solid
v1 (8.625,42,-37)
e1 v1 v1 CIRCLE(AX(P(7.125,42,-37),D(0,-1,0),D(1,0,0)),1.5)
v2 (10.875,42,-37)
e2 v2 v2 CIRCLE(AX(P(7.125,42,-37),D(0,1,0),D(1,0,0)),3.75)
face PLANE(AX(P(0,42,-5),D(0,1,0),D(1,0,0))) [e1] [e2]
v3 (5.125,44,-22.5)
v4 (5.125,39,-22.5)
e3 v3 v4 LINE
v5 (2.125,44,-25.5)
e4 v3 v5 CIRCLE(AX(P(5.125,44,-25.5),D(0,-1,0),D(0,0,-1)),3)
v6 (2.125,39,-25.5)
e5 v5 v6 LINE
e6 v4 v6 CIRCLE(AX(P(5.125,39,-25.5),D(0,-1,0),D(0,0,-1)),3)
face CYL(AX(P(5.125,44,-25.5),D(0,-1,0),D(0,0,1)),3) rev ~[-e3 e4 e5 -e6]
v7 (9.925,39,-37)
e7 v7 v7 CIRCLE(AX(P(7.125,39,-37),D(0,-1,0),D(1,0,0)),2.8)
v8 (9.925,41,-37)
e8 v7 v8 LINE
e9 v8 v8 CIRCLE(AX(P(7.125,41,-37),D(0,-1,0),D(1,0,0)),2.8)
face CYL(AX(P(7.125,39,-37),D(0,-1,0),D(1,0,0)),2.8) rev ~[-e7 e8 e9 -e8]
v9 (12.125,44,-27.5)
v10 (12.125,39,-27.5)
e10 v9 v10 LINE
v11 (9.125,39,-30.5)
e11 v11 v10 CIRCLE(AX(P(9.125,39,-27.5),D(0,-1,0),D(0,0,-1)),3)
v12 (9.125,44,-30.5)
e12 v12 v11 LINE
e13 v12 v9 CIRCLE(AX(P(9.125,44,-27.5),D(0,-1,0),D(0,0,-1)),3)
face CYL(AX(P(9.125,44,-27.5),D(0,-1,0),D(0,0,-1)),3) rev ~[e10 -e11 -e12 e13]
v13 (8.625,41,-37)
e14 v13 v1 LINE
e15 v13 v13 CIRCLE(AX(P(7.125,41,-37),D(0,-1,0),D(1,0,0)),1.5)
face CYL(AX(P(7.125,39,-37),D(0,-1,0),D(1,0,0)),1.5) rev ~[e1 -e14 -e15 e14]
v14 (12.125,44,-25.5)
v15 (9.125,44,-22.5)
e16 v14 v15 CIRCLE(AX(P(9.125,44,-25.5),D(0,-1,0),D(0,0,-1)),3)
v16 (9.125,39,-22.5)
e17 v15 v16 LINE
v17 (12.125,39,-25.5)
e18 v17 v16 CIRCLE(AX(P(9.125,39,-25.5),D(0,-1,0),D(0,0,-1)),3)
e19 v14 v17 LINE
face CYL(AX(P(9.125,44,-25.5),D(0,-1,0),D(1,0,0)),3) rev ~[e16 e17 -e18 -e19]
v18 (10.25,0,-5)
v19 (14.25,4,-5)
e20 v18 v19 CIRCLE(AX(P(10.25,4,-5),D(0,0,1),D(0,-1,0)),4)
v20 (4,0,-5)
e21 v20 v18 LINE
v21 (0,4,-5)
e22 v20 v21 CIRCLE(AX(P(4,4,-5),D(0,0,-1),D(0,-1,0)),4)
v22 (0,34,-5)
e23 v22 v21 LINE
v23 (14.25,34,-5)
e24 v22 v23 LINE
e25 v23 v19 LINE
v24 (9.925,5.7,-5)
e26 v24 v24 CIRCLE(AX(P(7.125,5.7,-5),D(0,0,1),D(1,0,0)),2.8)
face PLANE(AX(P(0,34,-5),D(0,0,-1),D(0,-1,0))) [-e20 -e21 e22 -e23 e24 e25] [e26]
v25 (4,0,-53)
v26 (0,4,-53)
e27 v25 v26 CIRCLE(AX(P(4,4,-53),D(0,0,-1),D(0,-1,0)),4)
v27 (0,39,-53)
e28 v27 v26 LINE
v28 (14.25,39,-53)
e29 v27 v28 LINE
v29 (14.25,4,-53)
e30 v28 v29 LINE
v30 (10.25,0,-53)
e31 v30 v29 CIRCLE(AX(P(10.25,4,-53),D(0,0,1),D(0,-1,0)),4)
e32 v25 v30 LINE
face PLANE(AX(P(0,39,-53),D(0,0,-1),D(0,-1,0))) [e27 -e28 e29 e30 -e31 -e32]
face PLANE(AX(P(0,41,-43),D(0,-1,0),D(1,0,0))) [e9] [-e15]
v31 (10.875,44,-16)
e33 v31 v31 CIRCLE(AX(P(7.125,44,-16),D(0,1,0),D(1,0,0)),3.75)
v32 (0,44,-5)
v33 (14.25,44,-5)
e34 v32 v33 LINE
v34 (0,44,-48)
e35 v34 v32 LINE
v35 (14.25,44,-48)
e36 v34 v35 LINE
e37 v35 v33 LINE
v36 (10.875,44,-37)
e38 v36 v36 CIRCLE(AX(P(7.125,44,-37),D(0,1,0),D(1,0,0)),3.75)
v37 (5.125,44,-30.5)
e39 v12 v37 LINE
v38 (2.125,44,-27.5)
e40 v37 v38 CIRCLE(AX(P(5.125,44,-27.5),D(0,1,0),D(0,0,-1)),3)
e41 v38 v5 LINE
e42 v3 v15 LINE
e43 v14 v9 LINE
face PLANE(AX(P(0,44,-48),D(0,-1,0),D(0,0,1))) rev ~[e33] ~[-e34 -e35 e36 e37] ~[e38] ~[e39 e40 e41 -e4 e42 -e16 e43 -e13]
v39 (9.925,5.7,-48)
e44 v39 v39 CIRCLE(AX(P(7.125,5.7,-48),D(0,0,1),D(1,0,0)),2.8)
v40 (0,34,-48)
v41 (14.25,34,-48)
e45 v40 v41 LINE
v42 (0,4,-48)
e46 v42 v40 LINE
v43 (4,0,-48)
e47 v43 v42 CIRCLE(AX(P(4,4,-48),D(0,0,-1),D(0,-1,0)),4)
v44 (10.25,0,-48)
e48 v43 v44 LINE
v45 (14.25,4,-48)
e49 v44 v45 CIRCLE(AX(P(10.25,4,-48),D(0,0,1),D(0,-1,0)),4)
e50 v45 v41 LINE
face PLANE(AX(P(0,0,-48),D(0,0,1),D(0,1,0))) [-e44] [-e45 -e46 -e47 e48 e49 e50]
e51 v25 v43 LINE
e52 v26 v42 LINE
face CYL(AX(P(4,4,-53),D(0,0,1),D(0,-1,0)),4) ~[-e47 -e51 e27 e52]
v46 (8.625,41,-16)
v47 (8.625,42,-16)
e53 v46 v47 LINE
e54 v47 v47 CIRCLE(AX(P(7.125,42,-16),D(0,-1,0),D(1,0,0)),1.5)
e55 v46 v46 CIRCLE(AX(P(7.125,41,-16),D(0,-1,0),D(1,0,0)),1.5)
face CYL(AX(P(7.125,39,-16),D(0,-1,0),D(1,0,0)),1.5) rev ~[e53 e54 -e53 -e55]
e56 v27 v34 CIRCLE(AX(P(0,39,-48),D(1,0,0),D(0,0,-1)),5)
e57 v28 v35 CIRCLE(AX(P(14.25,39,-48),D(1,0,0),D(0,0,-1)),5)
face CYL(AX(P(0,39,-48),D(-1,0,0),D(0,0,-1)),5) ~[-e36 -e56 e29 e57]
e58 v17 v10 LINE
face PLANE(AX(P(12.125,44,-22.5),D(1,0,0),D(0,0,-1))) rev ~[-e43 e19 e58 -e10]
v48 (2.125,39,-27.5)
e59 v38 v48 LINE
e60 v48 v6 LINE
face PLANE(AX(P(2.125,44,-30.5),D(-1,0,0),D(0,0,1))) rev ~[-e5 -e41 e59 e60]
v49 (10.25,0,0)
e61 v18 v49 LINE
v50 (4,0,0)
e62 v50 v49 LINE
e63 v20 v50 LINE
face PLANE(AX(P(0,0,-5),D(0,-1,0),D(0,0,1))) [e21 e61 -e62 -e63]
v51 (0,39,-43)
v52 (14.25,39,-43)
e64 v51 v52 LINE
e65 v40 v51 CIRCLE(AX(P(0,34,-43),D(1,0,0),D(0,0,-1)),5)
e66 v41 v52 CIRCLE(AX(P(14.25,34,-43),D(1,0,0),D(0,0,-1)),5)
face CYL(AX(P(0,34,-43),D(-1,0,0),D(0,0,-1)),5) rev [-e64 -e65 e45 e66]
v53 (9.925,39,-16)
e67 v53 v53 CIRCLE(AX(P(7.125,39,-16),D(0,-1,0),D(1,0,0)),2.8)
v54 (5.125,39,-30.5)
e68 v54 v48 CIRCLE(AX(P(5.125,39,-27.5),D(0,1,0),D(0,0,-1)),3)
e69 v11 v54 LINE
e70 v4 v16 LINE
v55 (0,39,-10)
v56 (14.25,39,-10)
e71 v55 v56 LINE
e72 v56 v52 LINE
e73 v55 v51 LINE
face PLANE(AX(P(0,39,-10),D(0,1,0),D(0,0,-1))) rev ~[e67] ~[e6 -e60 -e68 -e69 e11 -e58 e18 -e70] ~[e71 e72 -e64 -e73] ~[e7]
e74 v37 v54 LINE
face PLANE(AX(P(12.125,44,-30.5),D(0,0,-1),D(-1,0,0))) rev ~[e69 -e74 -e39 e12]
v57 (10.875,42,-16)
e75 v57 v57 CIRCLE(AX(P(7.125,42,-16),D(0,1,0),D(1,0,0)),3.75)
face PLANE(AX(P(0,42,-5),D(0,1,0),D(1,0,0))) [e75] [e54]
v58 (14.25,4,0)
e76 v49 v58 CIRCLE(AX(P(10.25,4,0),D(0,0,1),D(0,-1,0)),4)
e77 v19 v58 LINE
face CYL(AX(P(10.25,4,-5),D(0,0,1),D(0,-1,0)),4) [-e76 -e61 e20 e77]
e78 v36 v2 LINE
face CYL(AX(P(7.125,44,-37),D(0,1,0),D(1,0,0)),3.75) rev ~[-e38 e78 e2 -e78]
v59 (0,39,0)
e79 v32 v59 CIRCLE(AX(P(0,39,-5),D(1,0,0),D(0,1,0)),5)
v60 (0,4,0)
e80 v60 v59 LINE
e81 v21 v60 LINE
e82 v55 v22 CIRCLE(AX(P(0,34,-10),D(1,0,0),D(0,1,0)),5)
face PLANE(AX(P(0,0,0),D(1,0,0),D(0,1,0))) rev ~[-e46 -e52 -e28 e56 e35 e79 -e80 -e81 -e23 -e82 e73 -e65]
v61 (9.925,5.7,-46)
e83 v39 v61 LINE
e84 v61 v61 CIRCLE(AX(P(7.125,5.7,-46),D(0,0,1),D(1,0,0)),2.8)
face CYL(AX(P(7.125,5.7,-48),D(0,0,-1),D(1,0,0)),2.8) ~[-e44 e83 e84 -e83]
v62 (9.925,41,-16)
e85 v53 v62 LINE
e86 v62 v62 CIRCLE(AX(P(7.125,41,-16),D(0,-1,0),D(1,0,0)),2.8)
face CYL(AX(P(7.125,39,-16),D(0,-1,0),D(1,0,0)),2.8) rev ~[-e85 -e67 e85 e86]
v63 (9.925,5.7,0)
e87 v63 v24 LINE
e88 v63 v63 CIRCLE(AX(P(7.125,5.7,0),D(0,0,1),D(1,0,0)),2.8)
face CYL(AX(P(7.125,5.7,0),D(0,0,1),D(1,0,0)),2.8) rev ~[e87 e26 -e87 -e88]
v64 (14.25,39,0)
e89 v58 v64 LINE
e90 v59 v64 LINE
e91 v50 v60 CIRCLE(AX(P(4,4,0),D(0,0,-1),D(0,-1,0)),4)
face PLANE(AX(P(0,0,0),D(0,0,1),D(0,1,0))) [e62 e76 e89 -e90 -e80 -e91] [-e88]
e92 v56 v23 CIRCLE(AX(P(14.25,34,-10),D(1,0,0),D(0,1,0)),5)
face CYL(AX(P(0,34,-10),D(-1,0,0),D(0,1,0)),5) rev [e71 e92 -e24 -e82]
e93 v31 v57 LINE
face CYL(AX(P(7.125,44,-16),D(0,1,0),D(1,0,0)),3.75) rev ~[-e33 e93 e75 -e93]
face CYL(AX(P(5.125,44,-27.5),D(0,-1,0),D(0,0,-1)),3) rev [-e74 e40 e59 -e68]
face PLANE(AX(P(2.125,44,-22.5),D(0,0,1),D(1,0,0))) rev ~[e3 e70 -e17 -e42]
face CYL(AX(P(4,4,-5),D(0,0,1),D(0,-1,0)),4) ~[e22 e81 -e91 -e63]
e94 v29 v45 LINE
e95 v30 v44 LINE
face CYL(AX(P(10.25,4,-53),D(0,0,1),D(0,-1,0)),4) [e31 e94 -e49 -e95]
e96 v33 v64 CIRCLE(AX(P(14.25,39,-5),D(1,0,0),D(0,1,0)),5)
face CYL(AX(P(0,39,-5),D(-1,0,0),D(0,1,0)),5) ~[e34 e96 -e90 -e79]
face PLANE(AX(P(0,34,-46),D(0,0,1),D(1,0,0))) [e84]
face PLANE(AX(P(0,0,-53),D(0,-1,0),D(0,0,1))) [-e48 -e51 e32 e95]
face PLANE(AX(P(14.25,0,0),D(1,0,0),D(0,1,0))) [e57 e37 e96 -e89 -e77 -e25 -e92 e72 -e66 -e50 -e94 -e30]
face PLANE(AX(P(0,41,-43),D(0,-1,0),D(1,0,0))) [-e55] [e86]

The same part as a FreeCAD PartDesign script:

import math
import FreeCAD as App
import Part
import Sketcher

V = App.Vector
Q = App.Units.Quantity


def edges_at(feature, points):
    """Names of the edges that pass closest to the given points."""
    edges = feature.Shape.Edges
    near = lambda p: min(range(len(edges)), key=lambda i: edges[i].distToShape(Part.Vertex(*p))[0])
    return sorted({f"Edge{near(p) + 1}" for p in points})


def add_polygon(sketch, points):
    """Adds a closed chain of lines whose ends are joined by coincident constraints."""
    first, n = sketch.GeometryCount, len(points)
    for a, b in zip(points, points[1:] + points[:1]):
        sketch.addGeometry(Part.LineSegment(App.Vector(*a, 0), App.Vector(*b, 0)), False)
    for i in range(n):
        sketch.addConstraint(Sketcher.Constraint("Coincident", first + i, 2, first + (i + 1) % n, 1))

doc = App.newDocument("Part")
body = doc.addObject("PartDesign::Body", "Body")

sketch1 = body.newObject("Sketcher::SketchObject", "Sketch")
sketch1.AttachmentSupport = (doc.getObject("YZ_Plane"), [""])
sketch1.MapMode = "FlatFace"
sketch1.addGeometry(Part.LineSegment(V(39, 0, 0), V(0, 0, 0)), False)
sketch1.addGeometry(Part.LineSegment(V(0, 0, 0), V(0, -5, 0)), False)
sketch1.addGeometry(Part.LineSegment(V(0, -5, 0), V(34, -5, 0)), False)
sketch1.addGeometry(Part.ArcOfCircle(Part.Circle(V(34, -10, 0), V(0, 0, 1), 5), math.radians(0), math.radians(90)), False)
sketch1.addGeometry(Part.LineSegment(V(39, -10, 0), V(39, -43, 0)), False)
sketch1.addGeometry(Part.ArcOfCircle(Part.Circle(V(34, -43, 0), V(0, 0, 1), 5), math.radians(-90), math.radians(0)), False)
sketch1.addGeometry(Part.LineSegment(V(34, -48, 0), V(0, -48, 0)), False)
sketch1.addGeometry(Part.LineSegment(V(0, -48, 0), V(0, -53, 0)), False)
sketch1.addGeometry(Part.LineSegment(V(0, -53, 0), V(39, -53, 0)), False)
sketch1.addGeometry(Part.ArcOfCircle(Part.Circle(V(39, -48, 0), V(0, 0, 1), 5), math.radians(-90), math.radians(0)), False)
sketch1.addGeometry(Part.LineSegment(V(44, -48, 0), V(44, -5, 0)), False)
sketch1.addGeometry(Part.ArcOfCircle(Part.Circle(V(39, -5, 0), V(0, 0, 1), 5), math.radians(0), math.radians(90)), False)
sketch1.addConstraint(Sketcher.Constraint("Coincident", 0, 2, 1, 1))
sketch1.addConstraint(Sketcher.Constraint("Coincident", 1, 2, 2, 1))
sketch1.addConstraint(Sketcher.Constraint("Tangent", 2, 2, 3, 2))
sketch1.addConstraint(Sketcher.Constraint("Tangent", 3, 1, 4, 1))
sketch1.addConstraint(Sketcher.Constraint("Tangent", 4, 2, 5, 2))
sketch1.addConstraint(Sketcher.Constraint("Tangent", 5, 1, 6, 1))
sketch1.addConstraint(Sketcher.Constraint("Coincident", 6, 2, 7, 1))
sketch1.addConstraint(Sketcher.Constraint("Coincident", 7, 2, 8, 1))
sketch1.addConstraint(Sketcher.Constraint("Tangent", 8, 2, 9, 1))
sketch1.addConstraint(Sketcher.Constraint("Tangent", 9, 2, 10, 1))
sketch1.addConstraint(Sketcher.Constraint("Tangent", 10, 2, 11, 1))
sketch1.addConstraint(Sketcher.Constraint("Tangent", 11, 2, 0, 1))
sketch1.addConstraint(Sketcher.Constraint("Horizontal", 0))
sketch1.addConstraint(Sketcher.Constraint("Vertical", 1))
sketch1.addConstraint(Sketcher.Constraint("Horizontal", 2))
sketch1.addConstraint(Sketcher.Constraint("Vertical", 4))
sketch1.addConstraint(Sketcher.Constraint("Horizontal", 6))
sketch1.addConstraint(Sketcher.Constraint("Vertical", 7))
sketch1.addConstraint(Sketcher.Constraint("Horizontal", 8))
sketch1.addConstraint(Sketcher.Constraint("Vertical", 10))
sketch1.addConstraint(Sketcher.Constraint("Coincident", 0, 2, -1, 1))
sketch1.addConstraint(Sketcher.Constraint("Equal", 3, 5))
sketch1.addConstraint(Sketcher.Constraint("Equal", 5, 9))
sketch1.addConstraint(Sketcher.Constraint("Equal", 9, 11))
sketch1.addConstraint(Sketcher.Constraint("PointOnObject", 6, 2, -2))
sketch1.addConstraint(Sketcher.Constraint("Horizontal", 11, 3, 1, 2))
sketch1.addConstraint(Sketcher.Constraint("Horizontal", 9, 3, 5, 1))
sketch1.addConstraint(Sketcher.Constraint("Vertical", 11, 3, 3, 1))
sketch1.addConstraint(Sketcher.Constraint("Radius", 3, Q("5 mm")))
sketch1.addConstraint(Sketcher.Constraint("DistanceX", 0, 2, 0, 1, Q("39 mm")))
sketch1.addConstraint(Sketcher.Constraint("DistanceY", 10, 1, 10, 2, Q("43 mm")))
pad1 = body.newObject("PartDesign::Pad", "Pad")
pad1.Profile = sketch1
pad1.Length = 14.25
doc.recompute()

fillet = body.newObject("PartDesign::Fillet", "Fillet")
fillet.Base = (pad1, edges_at(pad1, [
    (14.25, 0, -2.5),
    (0, 0, -2.5),
    (14.25, 0, -50.5),
    (0, 0, -50.5),
]))
fillet.Radius = 4

sketch2 = body.newObject("Sketcher::SketchObject", "Sketch001")
sketch2.AttachmentSupport = (doc.getObject("XY_Plane"), [""])
sketch2.MapMode = "FlatFace"
sketch2.addGeometry(Part.Circle(V(7.125, 5.7, 0), V(0, 0, 1), 2.8), False)
sketch2.addConstraint(Sketcher.Constraint("Diameter", 0, Q("5.6 mm")))
sketch2.addConstraint(Sketcher.Constraint("DistanceY", -1, 1, 0, 3, Q("5.7 mm")))
sketch2.addConstraint(Sketcher.Constraint("DistanceX", -1, 1, 0, 3, Q("7.125 mm")))
pocket1 = body.newObject("PartDesign::Pocket", "Pocket")
pocket1.Profile = sketch2
pocket1.Length = 11.4

sketch3 = body.newObject("Sketcher::SketchObject", "Sketch002")
sketch3.AttachmentSupport = (doc.getObject("XZ_Plane"), [""])
sketch3.MapMode = "FlatFace"
sketch3.AttachmentOffset = App.Placement(V(0, 0, -39), App.Rotation())
sketch3.addGeometry(Part.Circle(V(7.125, -16, 0), V(0, 0, 1), 1.5), False)
sketch3.addGeometry(Part.Circle(V(7.125, -37, 0), V(0, 0, 1), 1.5), False)
sketch3.addConstraint(Sketcher.Constraint("Equal", 0, 1))
sketch3.addConstraint(Sketcher.Constraint("Vertical", 0, 3, 1, 3))
sketch3.addConstraint(Sketcher.Constraint("Diameter", 0, Q("3 mm")))
sketch3.addConstraint(Sketcher.Constraint("DistanceX", -1, 1, 0, 3, Q("7.125 mm")))
sketch3.addConstraint(Sketcher.Constraint("DistanceY", 0, 3, -1, 1, Q("16 mm")))
sketch3.addConstraint(Sketcher.Constraint("DistanceY", 1, 3, -1, 1, Q("37 mm")))
pocket2 = body.newObject("PartDesign::Pocket", "Pocket001")
pocket2.Profile = sketch3
pocket2.Length = 8

sketch4 = body.newObject("Sketcher::SketchObject", "Sketch003")
sketch4.AttachmentSupport = (doc.getObject("XZ_Plane"), [""])
sketch4.MapMode = "FlatFace"
sketch4.AttachmentOffset = App.Placement(V(0, 0, -39), App.Rotation())
sketch4.addGeometry(Part.Circle(V(7.125, -16, 0), V(0, 0, 1), 2.8), False)
sketch4.addGeometry(Part.Circle(V(7.125, -16, 0), V(0, 0, 1), 1.5), False)
sketch4.addGeometry(Part.Circle(V(7.125, -37, 0), V(0, 0, 1), 2.8), False)
sketch4.addGeometry(Part.Circle(V(7.125, -37, 0), V(0, 0, 1), 1.5), False)
sketch4.addConstraint(Sketcher.Constraint("Coincident", 1, 3, 0, 3))
sketch4.addConstraint(Sketcher.Constraint("Coincident", 3, 3, 2, 3))
sketch4.addConstraint(Sketcher.Constraint("Equal", 0, 2))
sketch4.addConstraint(Sketcher.Constraint("Equal", 1, 3))
sketch4.addConstraint(Sketcher.Constraint("Vertical", 1, 3, 2, 3))
sketch4.addConstraint(Sketcher.Constraint("Diameter", 1, Q("3 mm")))
sketch4.addConstraint(Sketcher.Constraint("Diameter", 0, Q("5.6 mm")))
sketch4.addConstraint(Sketcher.Constraint("DistanceX", -1, 1, 0, 3, Q("7.125 mm")))
sketch4.addConstraint(Sketcher.Constraint("DistanceY", 0, 3, -1, 1, Q("16 mm")))
sketch4.addConstraint(Sketcher.Constraint("DistanceY", 2, 3, -1, 1, Q("37 mm")))
pocket3 = body.newObject("PartDesign::Pocket", "Pocket002")
pocket3.Profile = sketch4
pocket3.Length = 2

sketch5 = body.newObject("Sketcher::SketchObject", "Sketch004")
sketch5.AttachmentSupport = (doc.getObject("XY_Plane"), [""])
sketch5.MapMode = "FlatFace"
sketch5.AttachmentOffset = App.Placement(V(0, 0, -48), App.Rotation())
sketch5.addGeometry(Part.Circle(V(7.125, 5.7, 0), V(0, 0, 1), 2.8), False)
sketch5.addConstraint(Sketcher.Constraint("Diameter", 0, Q("5.6 mm")))
sketch5.addConstraint(Sketcher.Constraint("DistanceY", -1, 1, 0, 3, Q("5.7 mm")))
sketch5.addConstraint(Sketcher.Constraint("DistanceX", -1, 1, 0, 3, Q("7.125 mm")))
pad2 = body.newObject("PartDesign::Pad", "Pad001")
pad2.Profile = sketch5
pad2.Length = 2

sketch6 = body.newObject("Sketcher::SketchObject", "Sketch005")
sketch6.AttachmentSupport = (doc.getObject("XZ_Plane"), [""])
sketch6.MapMode = "FlatFace"
sketch6.AttachmentOffset = App.Placement(V(0, 0, -44), App.Rotation())
sketch6.addGeometry(Part.Circle(V(7.125, -16, 0), V(0, 0, 1), 3.75), False)
sketch6.addGeometry(Part.Circle(V(7.125, -37, 0), V(0, 0, 1), 3.75), False)
sketch6.addConstraint(Sketcher.Constraint("Equal", 0, 1))
sketch6.addConstraint(Sketcher.Constraint("Vertical", 0, 3, 1, 3))
sketch6.addConstraint(Sketcher.Constraint("Diameter", 0, Q("7.5 mm")))
sketch6.addConstraint(Sketcher.Constraint("DistanceY", 0, 3, -1, 1, Q("16 mm")))
sketch6.addConstraint(Sketcher.Constraint("DistanceY", 1, 3, -1, 1, Q("37 mm")))
sketch6.addConstraint(Sketcher.Constraint("DistanceX", -1, 1, 0, 3, Q("7.125 mm")))
pocket4 = body.newObject("PartDesign::Pocket", "Pocket003")
pocket4.Profile = sketch6
pocket4.Length = 2
pocket4.Reversed = True

sketch7 = body.newObject("Sketcher::SketchObject", "Sketch006")
sketch7.AttachmentSupport = (doc.getObject("XZ_Plane"), [""])
sketch7.MapMode = "FlatFace"
sketch7.AttachmentOffset = App.Placement(V(0, 0, -44), App.Rotation())
add_polygon(sketch7, [(2.125, -30.5), (2.125, -22.5), (12.125, -22.5), (12.125, -30.5)])
sketch7.addConstraint(Sketcher.Constraint("Vertical", 0))
sketch7.addConstraint(Sketcher.Constraint("Horizontal", 1))
sketch7.addConstraint(Sketcher.Constraint("Vertical", 2))
sketch7.addConstraint(Sketcher.Constraint("Horizontal", 3))
sketch7.addConstraint(Sketcher.Constraint("DistanceX", 1, 1, 1, 2, Q("10 mm")))
sketch7.addConstraint(Sketcher.Constraint("DistanceY", 0, 1, 0, 2, Q("8 mm")))
sketch7.addConstraint(Sketcher.Constraint("DistanceX", -1, 1, 0, 2, Q("2.125 mm")))
sketch7.addConstraint(Sketcher.Constraint("DistanceY", 0, 2, -1, 1, Q("22.5 mm")))
pocket5 = body.newObject("PartDesign::Pocket", "Pocket004")
pocket5.Profile = sketch7
pocket5.Length = 50
pocket5.Reversed = True
doc.recompute()

fillet2 = body.newObject("PartDesign::Fillet", "Fillet001")
fillet2.Base = (pocket5, edges_at(pocket5, [
    (2.125, 41.5, -22.5),
    (2.125, 41.5, -30.5),
    (12.125, 41.5, -22.5),
    (12.125, 41.5, -30.5),
]))
fillet2.Radius = 3

doc.recompute()
